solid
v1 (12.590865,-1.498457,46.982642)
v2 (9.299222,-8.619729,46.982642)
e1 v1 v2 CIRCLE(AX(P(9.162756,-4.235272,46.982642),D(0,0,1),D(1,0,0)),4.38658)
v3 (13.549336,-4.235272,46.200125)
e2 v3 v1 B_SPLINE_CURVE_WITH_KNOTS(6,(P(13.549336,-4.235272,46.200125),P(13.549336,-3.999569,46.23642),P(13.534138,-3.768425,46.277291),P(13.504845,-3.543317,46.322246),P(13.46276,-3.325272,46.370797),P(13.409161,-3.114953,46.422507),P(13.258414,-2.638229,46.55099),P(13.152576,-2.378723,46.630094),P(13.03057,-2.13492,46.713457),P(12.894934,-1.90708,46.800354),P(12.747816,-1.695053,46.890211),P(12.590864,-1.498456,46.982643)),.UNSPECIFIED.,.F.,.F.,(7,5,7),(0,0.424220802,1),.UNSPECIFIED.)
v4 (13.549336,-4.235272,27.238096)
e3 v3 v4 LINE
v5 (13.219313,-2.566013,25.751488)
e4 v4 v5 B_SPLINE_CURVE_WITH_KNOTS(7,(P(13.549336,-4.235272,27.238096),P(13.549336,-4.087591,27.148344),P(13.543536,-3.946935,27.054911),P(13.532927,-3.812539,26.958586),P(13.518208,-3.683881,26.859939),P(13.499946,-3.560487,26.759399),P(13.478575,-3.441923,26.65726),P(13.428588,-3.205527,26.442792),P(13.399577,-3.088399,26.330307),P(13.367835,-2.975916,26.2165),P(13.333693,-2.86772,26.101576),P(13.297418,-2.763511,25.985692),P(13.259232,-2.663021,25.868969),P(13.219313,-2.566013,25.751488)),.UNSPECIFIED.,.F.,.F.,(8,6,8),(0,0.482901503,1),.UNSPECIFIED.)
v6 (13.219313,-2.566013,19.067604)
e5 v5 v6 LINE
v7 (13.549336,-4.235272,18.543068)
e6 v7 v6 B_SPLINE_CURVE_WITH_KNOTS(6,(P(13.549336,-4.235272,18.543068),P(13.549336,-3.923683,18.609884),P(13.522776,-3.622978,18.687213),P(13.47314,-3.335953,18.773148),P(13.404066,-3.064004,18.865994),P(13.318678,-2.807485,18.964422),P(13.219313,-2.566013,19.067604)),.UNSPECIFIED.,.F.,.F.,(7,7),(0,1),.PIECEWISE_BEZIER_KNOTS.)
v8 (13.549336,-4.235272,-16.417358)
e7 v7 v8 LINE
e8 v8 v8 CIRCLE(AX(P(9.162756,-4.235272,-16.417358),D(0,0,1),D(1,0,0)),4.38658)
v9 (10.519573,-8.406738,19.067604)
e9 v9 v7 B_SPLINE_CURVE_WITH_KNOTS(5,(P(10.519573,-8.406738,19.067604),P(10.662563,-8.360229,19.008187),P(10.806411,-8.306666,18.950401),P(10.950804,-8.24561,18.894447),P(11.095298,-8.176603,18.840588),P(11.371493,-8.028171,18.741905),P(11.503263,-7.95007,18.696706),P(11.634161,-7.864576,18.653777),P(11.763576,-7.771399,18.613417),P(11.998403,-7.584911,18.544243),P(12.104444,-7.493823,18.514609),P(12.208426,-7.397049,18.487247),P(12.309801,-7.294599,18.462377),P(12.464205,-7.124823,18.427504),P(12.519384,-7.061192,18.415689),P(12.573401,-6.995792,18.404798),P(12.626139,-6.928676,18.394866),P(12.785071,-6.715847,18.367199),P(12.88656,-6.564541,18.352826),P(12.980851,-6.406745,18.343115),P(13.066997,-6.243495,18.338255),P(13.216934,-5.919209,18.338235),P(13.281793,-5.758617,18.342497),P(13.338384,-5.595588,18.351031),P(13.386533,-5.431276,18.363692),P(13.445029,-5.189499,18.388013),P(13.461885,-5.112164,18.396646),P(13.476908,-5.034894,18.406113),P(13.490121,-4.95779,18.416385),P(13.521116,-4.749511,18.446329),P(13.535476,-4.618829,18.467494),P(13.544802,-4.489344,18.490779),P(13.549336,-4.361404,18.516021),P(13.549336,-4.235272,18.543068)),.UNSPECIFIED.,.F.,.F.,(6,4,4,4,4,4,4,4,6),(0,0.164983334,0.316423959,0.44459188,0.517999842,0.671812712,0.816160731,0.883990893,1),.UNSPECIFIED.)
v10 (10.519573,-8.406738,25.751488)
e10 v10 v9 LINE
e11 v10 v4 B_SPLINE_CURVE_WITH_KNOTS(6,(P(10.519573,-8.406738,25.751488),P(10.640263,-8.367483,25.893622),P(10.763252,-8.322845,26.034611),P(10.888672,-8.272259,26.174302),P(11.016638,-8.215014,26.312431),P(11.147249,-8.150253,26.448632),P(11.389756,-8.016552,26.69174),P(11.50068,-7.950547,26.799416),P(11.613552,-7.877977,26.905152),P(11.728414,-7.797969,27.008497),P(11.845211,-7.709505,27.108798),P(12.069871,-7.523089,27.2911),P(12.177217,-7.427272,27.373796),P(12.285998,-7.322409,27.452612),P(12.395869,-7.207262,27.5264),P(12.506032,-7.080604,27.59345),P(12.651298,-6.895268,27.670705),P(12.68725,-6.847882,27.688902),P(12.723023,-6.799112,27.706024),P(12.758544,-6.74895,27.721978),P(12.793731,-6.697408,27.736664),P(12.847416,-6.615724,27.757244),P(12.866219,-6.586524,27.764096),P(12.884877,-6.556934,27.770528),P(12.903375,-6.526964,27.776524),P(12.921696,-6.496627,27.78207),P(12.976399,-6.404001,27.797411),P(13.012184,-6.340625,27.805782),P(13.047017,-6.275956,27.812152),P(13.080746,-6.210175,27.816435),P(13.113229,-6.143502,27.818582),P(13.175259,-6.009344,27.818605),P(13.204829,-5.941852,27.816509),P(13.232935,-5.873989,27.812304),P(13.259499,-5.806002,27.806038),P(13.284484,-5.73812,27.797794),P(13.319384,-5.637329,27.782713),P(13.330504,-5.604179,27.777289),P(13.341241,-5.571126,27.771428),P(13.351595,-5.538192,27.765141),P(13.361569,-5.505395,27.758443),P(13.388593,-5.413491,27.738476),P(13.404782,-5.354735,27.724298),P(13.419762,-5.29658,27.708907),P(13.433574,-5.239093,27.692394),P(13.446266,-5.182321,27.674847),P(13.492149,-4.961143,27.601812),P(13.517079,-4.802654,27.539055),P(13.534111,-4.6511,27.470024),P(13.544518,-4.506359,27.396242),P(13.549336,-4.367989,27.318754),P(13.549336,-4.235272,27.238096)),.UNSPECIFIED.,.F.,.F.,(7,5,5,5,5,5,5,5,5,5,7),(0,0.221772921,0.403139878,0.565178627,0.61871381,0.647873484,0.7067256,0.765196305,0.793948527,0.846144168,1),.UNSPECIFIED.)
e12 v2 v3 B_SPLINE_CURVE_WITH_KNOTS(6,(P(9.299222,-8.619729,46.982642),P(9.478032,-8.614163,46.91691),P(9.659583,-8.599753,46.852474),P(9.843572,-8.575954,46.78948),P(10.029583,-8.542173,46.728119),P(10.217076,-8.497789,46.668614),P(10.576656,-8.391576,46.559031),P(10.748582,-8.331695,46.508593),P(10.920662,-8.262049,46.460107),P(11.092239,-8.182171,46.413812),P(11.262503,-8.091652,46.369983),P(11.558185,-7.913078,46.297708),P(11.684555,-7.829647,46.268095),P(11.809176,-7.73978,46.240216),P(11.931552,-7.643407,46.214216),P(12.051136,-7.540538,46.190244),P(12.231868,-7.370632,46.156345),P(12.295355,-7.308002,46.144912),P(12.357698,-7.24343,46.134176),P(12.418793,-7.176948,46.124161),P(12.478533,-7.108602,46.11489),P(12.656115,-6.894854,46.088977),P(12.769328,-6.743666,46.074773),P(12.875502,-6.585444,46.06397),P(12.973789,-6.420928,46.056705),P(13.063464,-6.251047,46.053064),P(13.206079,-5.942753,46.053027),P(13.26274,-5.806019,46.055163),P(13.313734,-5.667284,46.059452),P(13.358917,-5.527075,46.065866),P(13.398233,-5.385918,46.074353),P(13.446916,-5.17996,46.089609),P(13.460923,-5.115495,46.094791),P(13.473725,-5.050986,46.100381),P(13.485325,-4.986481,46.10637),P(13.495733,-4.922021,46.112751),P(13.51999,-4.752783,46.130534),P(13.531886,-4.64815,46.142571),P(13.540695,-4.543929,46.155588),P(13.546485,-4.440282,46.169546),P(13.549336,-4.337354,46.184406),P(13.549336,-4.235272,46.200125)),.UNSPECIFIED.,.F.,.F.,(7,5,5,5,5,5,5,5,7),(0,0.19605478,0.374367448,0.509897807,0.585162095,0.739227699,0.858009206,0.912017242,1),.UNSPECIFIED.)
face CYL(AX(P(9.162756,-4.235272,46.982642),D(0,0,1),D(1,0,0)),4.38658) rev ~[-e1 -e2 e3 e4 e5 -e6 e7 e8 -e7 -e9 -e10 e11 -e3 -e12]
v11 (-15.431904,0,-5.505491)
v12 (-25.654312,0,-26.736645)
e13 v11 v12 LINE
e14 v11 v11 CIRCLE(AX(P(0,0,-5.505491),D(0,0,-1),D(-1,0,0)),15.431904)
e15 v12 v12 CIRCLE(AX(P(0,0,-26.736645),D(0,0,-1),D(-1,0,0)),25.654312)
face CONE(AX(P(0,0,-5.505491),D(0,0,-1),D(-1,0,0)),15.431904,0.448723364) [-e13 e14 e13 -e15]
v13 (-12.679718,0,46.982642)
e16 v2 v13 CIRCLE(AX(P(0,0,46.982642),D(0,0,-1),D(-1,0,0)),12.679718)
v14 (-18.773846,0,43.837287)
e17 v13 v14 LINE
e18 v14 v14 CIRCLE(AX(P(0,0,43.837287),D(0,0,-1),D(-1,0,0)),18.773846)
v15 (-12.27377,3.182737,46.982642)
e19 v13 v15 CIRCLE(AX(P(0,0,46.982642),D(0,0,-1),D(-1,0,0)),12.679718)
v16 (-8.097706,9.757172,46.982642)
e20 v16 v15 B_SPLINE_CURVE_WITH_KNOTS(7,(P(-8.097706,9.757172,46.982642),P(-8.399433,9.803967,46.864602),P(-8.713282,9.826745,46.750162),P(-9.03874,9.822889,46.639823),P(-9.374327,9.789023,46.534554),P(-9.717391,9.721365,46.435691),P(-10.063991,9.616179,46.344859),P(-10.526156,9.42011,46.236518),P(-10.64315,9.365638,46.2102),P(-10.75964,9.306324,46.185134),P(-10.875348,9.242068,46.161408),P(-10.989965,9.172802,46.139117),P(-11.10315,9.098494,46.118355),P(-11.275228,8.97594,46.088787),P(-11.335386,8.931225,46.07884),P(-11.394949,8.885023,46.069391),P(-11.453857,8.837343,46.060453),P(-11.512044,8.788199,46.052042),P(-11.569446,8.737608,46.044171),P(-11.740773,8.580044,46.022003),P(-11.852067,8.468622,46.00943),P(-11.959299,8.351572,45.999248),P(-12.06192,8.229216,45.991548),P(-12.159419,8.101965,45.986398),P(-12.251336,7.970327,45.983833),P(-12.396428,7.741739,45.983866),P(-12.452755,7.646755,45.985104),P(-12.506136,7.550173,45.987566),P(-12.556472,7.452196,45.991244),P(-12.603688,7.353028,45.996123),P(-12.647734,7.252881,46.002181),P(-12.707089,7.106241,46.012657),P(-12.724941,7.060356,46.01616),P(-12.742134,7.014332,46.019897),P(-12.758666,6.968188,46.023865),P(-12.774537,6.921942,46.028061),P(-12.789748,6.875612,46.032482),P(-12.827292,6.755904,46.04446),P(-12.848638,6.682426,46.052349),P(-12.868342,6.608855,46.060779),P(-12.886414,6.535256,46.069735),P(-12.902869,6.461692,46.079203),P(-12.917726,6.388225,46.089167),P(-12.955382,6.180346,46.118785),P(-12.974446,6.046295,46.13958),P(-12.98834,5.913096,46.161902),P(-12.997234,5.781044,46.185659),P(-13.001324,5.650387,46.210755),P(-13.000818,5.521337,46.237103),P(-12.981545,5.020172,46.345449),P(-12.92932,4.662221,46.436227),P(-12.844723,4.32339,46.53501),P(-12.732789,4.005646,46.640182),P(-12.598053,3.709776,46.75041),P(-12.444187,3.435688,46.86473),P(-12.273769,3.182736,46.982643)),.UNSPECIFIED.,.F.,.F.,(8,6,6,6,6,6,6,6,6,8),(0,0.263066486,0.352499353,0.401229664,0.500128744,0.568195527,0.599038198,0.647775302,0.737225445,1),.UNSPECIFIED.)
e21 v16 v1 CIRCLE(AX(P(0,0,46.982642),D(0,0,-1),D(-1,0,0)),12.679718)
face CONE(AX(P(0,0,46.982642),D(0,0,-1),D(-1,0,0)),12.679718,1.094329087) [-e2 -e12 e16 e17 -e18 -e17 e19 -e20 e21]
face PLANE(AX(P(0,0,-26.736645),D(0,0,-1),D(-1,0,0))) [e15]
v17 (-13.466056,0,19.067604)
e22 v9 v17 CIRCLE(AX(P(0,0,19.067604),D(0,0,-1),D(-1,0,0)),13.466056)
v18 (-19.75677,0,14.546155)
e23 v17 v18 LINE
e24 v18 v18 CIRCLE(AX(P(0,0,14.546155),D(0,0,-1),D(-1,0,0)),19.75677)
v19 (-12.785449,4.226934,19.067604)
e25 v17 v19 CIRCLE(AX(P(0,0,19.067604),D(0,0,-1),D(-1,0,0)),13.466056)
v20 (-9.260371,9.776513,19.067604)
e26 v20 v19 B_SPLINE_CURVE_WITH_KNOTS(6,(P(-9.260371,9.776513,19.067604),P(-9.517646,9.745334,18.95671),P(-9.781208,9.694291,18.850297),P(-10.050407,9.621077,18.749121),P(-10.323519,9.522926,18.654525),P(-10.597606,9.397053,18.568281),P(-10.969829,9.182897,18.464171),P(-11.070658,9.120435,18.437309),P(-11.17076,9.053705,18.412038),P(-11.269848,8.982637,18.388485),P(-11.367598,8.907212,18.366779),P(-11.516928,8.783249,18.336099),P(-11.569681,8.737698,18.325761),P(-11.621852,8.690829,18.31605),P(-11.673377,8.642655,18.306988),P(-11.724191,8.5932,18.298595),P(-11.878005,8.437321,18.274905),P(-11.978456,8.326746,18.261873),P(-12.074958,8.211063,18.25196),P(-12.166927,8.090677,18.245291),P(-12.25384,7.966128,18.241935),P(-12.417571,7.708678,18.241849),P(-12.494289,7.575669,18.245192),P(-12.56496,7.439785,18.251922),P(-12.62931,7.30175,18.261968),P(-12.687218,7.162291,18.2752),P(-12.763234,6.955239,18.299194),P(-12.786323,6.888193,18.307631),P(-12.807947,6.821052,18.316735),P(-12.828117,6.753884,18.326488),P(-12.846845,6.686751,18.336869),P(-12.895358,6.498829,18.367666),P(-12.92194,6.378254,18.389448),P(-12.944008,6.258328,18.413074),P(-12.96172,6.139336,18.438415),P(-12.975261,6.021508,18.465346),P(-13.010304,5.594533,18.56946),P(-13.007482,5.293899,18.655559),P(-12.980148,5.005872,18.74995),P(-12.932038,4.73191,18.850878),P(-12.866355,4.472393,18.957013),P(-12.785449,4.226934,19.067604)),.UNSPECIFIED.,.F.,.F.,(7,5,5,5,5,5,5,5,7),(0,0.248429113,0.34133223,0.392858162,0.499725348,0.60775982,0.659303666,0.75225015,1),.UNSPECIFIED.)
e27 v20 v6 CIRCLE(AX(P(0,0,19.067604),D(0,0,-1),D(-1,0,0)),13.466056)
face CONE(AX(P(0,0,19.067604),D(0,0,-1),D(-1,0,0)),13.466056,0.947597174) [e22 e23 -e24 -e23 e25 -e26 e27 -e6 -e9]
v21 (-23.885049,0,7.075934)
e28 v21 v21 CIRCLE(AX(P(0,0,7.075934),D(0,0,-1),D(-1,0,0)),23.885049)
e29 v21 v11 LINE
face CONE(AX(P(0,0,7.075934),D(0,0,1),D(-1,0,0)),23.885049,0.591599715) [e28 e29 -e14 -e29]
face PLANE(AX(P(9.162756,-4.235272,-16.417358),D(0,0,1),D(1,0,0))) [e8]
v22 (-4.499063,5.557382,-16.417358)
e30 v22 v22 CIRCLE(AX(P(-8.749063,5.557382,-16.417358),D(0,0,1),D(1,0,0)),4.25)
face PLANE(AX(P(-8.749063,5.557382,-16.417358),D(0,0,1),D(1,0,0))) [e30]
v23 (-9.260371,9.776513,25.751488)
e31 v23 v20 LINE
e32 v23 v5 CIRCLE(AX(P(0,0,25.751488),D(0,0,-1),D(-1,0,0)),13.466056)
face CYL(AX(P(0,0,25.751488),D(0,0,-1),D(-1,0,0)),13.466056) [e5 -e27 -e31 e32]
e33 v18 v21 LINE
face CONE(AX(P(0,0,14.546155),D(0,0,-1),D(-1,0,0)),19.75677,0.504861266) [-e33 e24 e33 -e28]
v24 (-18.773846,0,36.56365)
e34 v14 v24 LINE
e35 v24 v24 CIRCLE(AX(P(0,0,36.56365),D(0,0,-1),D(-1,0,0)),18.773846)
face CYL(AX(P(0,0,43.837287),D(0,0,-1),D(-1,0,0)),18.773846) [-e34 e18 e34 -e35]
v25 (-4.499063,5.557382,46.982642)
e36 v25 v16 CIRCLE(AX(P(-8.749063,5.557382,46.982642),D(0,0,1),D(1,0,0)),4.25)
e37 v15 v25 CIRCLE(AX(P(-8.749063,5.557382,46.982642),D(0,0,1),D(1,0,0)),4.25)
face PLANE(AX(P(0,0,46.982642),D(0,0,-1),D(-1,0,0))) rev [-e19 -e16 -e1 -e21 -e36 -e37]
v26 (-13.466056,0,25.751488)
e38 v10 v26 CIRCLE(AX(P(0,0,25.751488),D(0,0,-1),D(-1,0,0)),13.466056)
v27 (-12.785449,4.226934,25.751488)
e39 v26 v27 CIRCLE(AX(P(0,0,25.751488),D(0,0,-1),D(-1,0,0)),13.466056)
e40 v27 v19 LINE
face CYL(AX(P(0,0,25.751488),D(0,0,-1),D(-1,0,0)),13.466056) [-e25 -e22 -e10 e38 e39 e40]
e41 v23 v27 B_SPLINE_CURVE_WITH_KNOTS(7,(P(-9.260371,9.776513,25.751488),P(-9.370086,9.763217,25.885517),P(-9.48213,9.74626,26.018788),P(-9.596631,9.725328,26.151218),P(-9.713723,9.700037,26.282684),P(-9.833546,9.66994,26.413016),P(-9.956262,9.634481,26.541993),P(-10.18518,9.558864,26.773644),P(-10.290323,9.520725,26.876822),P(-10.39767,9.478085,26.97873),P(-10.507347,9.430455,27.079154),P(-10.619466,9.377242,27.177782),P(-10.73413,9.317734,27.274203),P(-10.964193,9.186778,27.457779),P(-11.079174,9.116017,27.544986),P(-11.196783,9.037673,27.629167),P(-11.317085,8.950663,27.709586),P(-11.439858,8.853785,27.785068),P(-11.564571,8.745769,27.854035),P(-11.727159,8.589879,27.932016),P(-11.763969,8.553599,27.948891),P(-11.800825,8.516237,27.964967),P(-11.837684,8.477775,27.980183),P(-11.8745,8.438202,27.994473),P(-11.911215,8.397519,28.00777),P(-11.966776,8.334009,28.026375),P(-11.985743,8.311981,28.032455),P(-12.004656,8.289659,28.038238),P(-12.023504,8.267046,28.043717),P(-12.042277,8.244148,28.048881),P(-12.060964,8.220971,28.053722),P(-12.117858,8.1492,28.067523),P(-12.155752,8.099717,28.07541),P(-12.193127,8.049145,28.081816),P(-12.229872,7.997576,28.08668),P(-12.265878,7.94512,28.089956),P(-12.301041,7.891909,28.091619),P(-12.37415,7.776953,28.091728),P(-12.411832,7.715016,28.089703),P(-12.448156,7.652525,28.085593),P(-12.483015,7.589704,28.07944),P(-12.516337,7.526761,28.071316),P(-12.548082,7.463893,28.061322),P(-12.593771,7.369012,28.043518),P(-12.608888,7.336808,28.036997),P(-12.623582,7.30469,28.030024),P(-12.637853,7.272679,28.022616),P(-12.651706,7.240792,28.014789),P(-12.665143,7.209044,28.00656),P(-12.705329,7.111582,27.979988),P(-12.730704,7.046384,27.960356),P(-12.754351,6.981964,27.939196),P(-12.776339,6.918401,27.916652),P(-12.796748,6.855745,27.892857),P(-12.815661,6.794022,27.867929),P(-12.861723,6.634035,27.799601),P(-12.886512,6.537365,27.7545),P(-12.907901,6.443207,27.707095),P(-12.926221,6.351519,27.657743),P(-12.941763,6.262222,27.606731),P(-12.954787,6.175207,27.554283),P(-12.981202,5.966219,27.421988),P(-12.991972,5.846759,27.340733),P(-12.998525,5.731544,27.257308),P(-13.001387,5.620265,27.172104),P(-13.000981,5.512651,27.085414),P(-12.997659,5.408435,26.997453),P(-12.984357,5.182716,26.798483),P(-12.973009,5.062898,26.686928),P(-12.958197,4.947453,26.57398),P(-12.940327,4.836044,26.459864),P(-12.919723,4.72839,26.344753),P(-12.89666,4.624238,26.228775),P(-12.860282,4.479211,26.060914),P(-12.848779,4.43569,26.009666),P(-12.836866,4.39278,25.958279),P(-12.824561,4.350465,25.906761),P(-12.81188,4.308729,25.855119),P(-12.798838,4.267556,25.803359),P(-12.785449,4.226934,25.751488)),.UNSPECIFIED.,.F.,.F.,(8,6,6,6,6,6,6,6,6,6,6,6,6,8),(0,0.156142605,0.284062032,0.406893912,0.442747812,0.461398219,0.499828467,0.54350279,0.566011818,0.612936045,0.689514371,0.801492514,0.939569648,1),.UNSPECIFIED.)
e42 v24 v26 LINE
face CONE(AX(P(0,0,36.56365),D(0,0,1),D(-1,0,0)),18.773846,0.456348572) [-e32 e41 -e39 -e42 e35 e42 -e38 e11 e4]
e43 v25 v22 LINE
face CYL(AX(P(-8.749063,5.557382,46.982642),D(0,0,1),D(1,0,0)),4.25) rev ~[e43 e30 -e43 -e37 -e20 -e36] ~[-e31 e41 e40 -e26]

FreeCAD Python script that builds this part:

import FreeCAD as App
import Part
import Sketcher

V = App.Vector

doc = App.newDocument("Part")
params = doc.addObject("Spreadsheet::Sheet", "Params")
for row, (alias, value) in enumerate([
    ("revolution_angle", "360 deg"),
    ("sketch2_diameter", "8.5 mm"),
    ("pocket1_length", "63.4 mm"),
], start=1):
    params.set(f"A{row}", alias)
    params.set(f"B{row}", "=" + value)
    params.setAlias(f"B{row}", alias)

body = doc.addObject("PartDesign::Body", "Body")

# Sketch on XZ plane
sketch1 = body.newObject("Sketcher::SketchObject", "Sketch")
sketch1.AttachmentSupport = (doc.getObject("XZ_Plane"), [""])
sketch1.MapMode = "FlatFace"
sketch1.addGeometry(Part.LineSegment(V(0, -27, 0), V(0, 47, 0)), False)
sketch1.addGeometry(Part.LineSegment(V(0, 47, 0), V(-13, 47, 0)), False)
sketch1.addGeometry(Part.LineSegment(V(-13, 47, 0), V(-19, 44, 0)), False)
sketch1.addGeometry(Part.LineSegment(V(-19, 44, 0), V(-19, 37, 0)), False)
sketch1.addGeometry(Part.LineSegment(V(-19, 37, 0), V(-13, 26, 0)), False)
sketch1.addGeometry(Part.LineSegment(V(-13, 26, 0), V(-13, 19, 0)), False)
sketch1.addGeometry(Part.LineSegment(V(-13, 19, 0), V(-20, 15, 0)), False)
sketch1.addGeometry(Part.LineSegment(V(-20, 15, 0), V(-24, 7, 0)), False)
sketch1.addGeometry(Part.LineSegment(V(-24, 7, 0), V(-15, -6, 0)), False)
sketch1.addGeometry(Part.LineSegment(V(-15, -6, 0), V(-26, -27, 0)), False)
sketch1.addGeometry(Part.LineSegment(V(-26, -27, 0), V(0, -27, 0)), False)
sketch1.addConstraint(Sketcher.Constraint("Coincident", 0, 2, 1, 1))
sketch1.addConstraint(Sketcher.Constraint("Coincident", 1, 2, 2, 1))
sketch1.addConstraint(Sketcher.Constraint("Coincident", 2, 2, 3, 1))
sketch1.addConstraint(Sketcher.Constraint("Coincident", 3, 2, 4, 1))
sketch1.addConstraint(Sketcher.Constraint("Coincident", 4, 2, 5, 1))
sketch1.addConstraint(Sketcher.Constraint("Coincident", 5, 2, 6, 1))
sketch1.addConstraint(Sketcher.Constraint("Coincident", 6, 2, 7, 1))
sketch1.addConstraint(Sketcher.Constraint("Coincident", 7, 2, 8, 1))
sketch1.addConstraint(Sketcher.Constraint("Coincident", 8, 2, 9, 1))
sketch1.addConstraint(Sketcher.Constraint("Coincident", 9, 2, 10, 1))
sketch1.addConstraint(Sketcher.Constraint("Coincident", 10, 2, 0, 1))
sketch1.addConstraint(Sketcher.Constraint("Vertical", 0))
sketch1.addConstraint(Sketcher.Constraint("Horizontal", 1))
sketch1.addConstraint(Sketcher.Constraint("Vertical", 3))
sketch1.addConstraint(Sketcher.Constraint("Vertical", 5))
sketch1.addConstraint(Sketcher.Constraint("Horizontal", 10))
sketch1.addConstraint(Sketcher.Constraint("PointOnObject", 0, 2, -2))
sketch1.addConstraint(Sketcher.Constraint("DistanceY", 4, 2, 2, 2, 18.085799))
sketch1.addConstraint(Sketcher.Constraint("DistanceY", 9, 2, 6, 2, 41.2828))
sketch1.addConstraint(Sketcher.Constraint("Distance", 4, 12.044728))
sketch1.addConstraint(Sketcher.Constraint("Distance", 7, 8.535039))
sketch1.addConstraint(Sketcher.Constraint("DistanceX", 1, 2, 1, 1, 12.679718))
sketch1.addConstraint(Sketcher.Constraint("DistanceX", 10, 1, 10, 2, 25.654312))
sketch1.addConstraint(Sketcher.Constraint("DistanceY", 0, 1, 0, 2, 73.719287))
sketch1.addConstraint(Sketcher.Constraint("DistanceY", 3, 2, 3, 1, 7.273637))
sketch1.addConstraint(Sketcher.Constraint("DistanceY", 5, 2, 5, 1, 6.683884))
sketch1.addConstraint(Sketcher.Constraint("DistanceY", -1, 1, 0, 2, 46.982642))
sketch1.addConstraint(Sketcher.Constraint("DistanceY", -1, 1, 3, 2, 36.56365))
sketch1.addConstraint(Sketcher.Constraint("DistanceX", 6, 2, -1, 1, 19.75677))
sketch1.addConstraint(Sketcher.Constraint("DistanceX", 7, 2, -1, 1, 23.885049))
sketch1.addConstraint(Sketcher.Constraint("DistanceY", 8, 2, -1, 1, 5.505491))
sketch1.addConstraint(Sketcher.Constraint("DistanceX", 4, 2, 1, 2, 0.786338))
sketch1.addConstraint(Sketcher.Constraint("DistanceX", 3, 2, 8, 2, 3.341942))
revolution = body.newObject("PartDesign::Revolution", "Revolution")
revolution.Profile = sketch1
revolution.ReferenceAxis = (sketch1, ["V_Axis"])
revolution.setExpression("Angle", "Params.revolution_angle")

# Sketch on XY plane
sketch2 = body.newObject("Sketcher::SketchObject", "Sketch001")
sketch2.AttachmentSupport = (doc.getObject("XY_Plane"), [""])
sketch2.MapMode = "FlatFace"
sketch2.AttachmentOffset = App.Placement(V(0, 0, 46.982642), App.Rotation())
sketch2.addGeometry(Part.Circle(V(-8.7, 5.6, 0), V(0, 0, 1), 4.2), False)
sketch2.addGeometry(Part.Circle(V(9.2, -4.2, 0), V(0, 0, 1), 4.4), False)
sketch2.addConstraint(Sketcher.Constraint("Diameter", 0, 8.5))
sketch2.addConstraint(Sketcher.Constraint("Diameter", 1, 8.77316))
sketch2.addConstraint(Sketcher.Constraint("DistanceY", -1, 1, 0, 3, 5.557382))
sketch2.addConstraint(Sketcher.Constraint("DistanceX", 0, 3, 1, 3, 17.911819))
sketch2.addConstraint(Sketcher.Constraint("DistanceX", 0, 3, -1, 1, 8.749063))
sketch2.addConstraint(Sketcher.Constraint("DistanceY", 1, 3, -1, 1, 4.235272))
sketch2.setExpression("Constraints[0]", "Params.sketch2_diameter")
pocket1 = body.newObject("PartDesign::Pocket", "Pocket")
pocket1.Profile = sketch2
pocket1.setExpression("Length", "Params.pocket1_length")

doc.recompute()
